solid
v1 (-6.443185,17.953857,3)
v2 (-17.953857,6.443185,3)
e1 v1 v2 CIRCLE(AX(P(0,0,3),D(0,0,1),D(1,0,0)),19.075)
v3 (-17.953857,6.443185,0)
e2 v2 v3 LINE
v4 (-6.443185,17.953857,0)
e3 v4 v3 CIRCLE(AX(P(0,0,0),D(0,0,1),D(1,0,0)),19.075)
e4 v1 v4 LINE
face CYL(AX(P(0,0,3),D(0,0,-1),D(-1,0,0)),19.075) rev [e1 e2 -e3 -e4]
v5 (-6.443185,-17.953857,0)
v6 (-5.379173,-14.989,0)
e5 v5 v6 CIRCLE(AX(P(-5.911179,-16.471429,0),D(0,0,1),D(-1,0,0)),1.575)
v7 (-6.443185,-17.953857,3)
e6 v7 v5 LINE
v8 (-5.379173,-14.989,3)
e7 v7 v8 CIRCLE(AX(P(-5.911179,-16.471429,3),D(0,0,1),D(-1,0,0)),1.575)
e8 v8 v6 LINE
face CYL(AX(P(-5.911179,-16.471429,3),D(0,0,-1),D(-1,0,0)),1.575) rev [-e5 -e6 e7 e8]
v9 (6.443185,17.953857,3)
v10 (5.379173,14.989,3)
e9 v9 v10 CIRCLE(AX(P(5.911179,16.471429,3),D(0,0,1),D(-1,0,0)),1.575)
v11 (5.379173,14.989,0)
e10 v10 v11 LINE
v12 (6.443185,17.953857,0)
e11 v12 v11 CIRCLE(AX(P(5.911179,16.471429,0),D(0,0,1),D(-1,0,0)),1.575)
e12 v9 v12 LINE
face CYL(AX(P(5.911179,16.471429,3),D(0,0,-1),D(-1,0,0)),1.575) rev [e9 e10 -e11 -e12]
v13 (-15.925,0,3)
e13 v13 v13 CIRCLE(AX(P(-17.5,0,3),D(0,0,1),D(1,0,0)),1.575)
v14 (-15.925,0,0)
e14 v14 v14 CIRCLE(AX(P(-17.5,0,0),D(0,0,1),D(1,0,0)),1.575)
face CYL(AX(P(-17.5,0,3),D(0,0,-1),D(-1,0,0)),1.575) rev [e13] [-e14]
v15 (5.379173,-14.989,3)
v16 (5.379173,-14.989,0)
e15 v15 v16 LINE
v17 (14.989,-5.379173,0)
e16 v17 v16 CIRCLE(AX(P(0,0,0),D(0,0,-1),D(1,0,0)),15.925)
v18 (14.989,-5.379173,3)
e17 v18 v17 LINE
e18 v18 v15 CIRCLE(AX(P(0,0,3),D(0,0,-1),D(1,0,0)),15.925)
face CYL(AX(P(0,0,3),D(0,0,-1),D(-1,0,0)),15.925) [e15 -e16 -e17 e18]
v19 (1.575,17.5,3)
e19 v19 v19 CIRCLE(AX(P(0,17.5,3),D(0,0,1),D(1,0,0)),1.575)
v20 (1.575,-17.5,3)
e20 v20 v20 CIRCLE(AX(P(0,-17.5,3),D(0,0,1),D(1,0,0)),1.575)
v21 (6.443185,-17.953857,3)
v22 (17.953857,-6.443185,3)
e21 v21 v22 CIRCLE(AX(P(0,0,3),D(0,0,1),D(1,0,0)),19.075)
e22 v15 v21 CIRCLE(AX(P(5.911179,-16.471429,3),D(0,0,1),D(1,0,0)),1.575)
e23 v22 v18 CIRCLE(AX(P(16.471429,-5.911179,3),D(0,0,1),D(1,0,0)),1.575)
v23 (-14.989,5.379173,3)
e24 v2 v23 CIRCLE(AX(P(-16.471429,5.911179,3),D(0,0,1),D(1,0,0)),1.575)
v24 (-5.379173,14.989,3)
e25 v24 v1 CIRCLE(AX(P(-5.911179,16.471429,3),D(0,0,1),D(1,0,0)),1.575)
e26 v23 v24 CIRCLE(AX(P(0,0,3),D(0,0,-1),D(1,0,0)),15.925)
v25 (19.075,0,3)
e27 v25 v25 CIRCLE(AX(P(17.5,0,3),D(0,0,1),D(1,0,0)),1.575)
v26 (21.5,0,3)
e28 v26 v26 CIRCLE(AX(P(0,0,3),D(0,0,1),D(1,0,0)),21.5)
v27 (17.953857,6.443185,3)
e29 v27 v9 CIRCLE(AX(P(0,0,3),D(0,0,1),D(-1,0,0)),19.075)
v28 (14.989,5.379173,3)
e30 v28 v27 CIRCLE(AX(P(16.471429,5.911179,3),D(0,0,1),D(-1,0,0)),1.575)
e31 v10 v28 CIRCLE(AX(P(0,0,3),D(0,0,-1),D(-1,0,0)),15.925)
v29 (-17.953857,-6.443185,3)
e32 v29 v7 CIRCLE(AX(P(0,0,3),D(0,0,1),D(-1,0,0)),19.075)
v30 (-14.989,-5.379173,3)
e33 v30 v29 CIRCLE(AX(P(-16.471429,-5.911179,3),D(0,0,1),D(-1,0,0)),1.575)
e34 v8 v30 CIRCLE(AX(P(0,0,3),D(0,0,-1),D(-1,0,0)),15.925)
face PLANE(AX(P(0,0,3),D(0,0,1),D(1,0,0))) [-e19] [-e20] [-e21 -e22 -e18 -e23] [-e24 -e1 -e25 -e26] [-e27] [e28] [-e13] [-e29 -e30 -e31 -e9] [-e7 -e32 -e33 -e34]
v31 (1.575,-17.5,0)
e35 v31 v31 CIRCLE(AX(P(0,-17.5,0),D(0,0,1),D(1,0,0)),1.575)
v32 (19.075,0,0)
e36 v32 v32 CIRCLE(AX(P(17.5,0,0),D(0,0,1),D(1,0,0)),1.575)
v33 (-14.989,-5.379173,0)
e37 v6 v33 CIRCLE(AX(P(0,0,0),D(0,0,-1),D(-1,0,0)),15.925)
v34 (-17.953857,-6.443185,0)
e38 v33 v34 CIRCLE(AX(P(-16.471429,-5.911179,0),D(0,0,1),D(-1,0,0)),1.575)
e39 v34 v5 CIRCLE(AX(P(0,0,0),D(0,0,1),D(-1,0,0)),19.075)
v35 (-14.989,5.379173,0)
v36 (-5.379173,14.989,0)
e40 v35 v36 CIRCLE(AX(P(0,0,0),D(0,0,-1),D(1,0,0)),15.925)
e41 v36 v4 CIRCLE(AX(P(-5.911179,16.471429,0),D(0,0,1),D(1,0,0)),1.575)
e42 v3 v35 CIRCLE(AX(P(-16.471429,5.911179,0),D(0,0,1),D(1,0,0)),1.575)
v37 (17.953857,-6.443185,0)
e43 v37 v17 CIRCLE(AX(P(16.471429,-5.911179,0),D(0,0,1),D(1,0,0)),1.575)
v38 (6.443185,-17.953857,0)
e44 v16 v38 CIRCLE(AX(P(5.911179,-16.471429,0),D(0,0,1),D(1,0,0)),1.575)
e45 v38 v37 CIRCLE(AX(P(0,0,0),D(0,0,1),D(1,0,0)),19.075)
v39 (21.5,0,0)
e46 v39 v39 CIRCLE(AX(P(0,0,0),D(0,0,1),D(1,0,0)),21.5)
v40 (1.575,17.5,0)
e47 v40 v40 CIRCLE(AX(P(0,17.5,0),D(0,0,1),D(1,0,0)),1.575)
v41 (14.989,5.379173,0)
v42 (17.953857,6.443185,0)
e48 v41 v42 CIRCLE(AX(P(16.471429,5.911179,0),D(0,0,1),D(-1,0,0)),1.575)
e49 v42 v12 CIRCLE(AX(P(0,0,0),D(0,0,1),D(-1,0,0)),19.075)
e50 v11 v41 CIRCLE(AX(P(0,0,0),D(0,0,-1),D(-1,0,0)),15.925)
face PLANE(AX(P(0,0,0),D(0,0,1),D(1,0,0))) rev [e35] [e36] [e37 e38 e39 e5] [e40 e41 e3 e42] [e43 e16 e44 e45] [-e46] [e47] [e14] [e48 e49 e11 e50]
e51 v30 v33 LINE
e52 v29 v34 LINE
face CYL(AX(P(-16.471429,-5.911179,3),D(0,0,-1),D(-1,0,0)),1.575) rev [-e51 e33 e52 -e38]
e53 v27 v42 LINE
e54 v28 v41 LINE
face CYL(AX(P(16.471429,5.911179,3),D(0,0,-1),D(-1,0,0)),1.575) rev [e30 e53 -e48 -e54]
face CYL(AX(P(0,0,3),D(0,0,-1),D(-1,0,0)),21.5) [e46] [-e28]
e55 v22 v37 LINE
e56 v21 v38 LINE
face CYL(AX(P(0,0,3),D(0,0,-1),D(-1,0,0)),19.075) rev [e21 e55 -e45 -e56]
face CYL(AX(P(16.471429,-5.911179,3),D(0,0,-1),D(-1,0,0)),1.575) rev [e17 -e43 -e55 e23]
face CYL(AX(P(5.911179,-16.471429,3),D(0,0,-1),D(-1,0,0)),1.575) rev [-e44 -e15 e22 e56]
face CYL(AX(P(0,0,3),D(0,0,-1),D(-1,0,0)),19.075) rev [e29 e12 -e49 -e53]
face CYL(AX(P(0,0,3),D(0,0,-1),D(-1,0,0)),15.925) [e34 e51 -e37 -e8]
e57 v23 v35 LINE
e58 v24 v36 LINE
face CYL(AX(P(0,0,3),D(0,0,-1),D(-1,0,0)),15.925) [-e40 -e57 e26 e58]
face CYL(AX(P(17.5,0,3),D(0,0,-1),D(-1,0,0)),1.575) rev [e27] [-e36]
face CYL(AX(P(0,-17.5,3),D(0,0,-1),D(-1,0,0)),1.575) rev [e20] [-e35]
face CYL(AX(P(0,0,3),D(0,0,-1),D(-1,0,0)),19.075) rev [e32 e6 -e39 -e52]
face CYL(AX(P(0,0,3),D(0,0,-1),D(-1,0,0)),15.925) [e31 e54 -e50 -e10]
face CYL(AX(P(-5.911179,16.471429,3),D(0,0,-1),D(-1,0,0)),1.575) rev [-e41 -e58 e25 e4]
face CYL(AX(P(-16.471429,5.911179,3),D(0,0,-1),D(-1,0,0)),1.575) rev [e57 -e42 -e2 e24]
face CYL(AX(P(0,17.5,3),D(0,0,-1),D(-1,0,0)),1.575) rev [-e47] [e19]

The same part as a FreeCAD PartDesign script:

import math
import FreeCAD as App
import Part
import Sketcher

V = App.Vector

doc = App.newDocument("Part")
params = doc.addObject("Spreadsheet::Sheet", "Params")
for row, (alias, value) in enumerate([
    ("sketch1_diameter", "43 mm"),
    ("sketch1_diameter2", "3.15 mm"),
    ("pad1_length", "3 mm"),
], start=1):
    params.set(f"A{row}", alias)
    params.set(f"B{row}", "=" + value)
    params.setAlias(f"B{row}", alias)

body = doc.addObject("PartDesign::Body", "Body")

# Sketch on XY plane
sketch1 = body.newObject("Sketcher::SketchObject", "Sketch")
sketch1.AttachmentSupport = (doc.getObject("XY_Plane"), [""])
sketch1.MapMode = "FlatFace"
sketch1.addGeometry([
    Part.Circle(V(0, 0, 0), V(0, 0, 1), 21.5),  # 0
    Part.ArcOfCircle(Part.Circle(V(0, 0, 0), V(0, 0, 1), 15.9), math.radians(-160), math.radians(-110)),  # 1
    Part.ArcOfCircle(Part.Circle(V(-5.9, -16.5, 0), V(0, 0, 1), 1.6), math.radians(-110), math.radians(70)),  # 2
    Part.ArcOfCircle(Part.Circle(V(0, 0, 0), V(0, 0, 1), 19.1), math.radians(-160), math.radians(-110)),  # 3
    Part.ArcOfCircle(Part.Circle(V(-16.5, -5.9, 0), V(0, 0, 1), 1.6), math.radians(20), math.radians(200)),  # 4
    Part.Circle(V(0, -17.5, 0), V(0, 0, 1), 1.6),  # 5
    Part.ArcOfCircle(Part.Circle(V(5.9, -16.5, 0), V(0, 0, 1), 1.6), math.radians(110), math.radians(290)),  # 6
    Part.ArcOfCircle(Part.Circle(V(0, 0, 0), V(0, 0, 1), 15.9), math.radians(-70), math.radians(-20)),  # 7
    Part.ArcOfCircle(Part.Circle(V(16.5, -5.9, 0), V(0, 0, 1), 1.6), math.radians(-20), math.radians(160)),  # 8
    Part.ArcOfCircle(Part.Circle(V(0, 0, 0), V(0, 0, 1), 19.1), math.radians(-70), math.radians(-20)),  # 9
    Part.Circle(V(-17.5, 0, 0), V(0, 0, 1), 1.6),  # 10
    Part.ArcOfCircle(Part.Circle(V(-5.9, 16.5, 0), V(0, 0, 1), 1.6), math.radians(-70), math.radians(110)),  # 11
    Part.ArcOfCircle(Part.Circle(V(0, 0, 0), V(0, 0, 1), 15.9), math.radians(110), math.radians(160)),  # 12
    Part.ArcOfCircle(Part.Circle(V(-16.5, 5.9, 0), V(0, 0, 1), 1.6), math.radians(160), math.radians(340)),  # 13
    Part.ArcOfCircle(Part.Circle(V(0, 0, 0), V(0, 0, 1), 19.1), math.radians(110), math.radians(160)),  # 14
    Part.Circle(V(17.5, 0, 0), V(0, 0, 1), 1.6),  # 15
    Part.Circle(V(0, 17.5, 0), V(0, 0, 1), 1.6),  # 16
    Part.ArcOfCircle(Part.Circle(V(0, 0, 0), V(0, 0, 1), 15.9), math.radians(20), math.radians(70)),  # 17
    Part.ArcOfCircle(Part.Circle(V(5.9, 16.5, 0), V(0, 0, 1), 1.6), math.radians(70), math.radians(250)),  # 18
    Part.ArcOfCircle(Part.Circle(V(0, 0, 0), V(0, 0, 1), 19.1), math.radians(20), math.radians(70)),  # 19
    Part.ArcOfCircle(Part.Circle(V(16.5, 5.9, 0), V(0, 0, 1), 1.6), math.radians(-160), math.radians(20)),  # 20
], False)
sketch1.addConstraint([
    Sketcher.Constraint("Tangent", 1, 2, 2, 2),
    Sketcher.Constraint("Tangent", 2, 1, 3, 2),
    Sketcher.Constraint("Tangent", 3, 1, 4, 2),
    Sketcher.Constraint("Tangent", 4, 1, 1, 1),
    Sketcher.Constraint("Tangent", 6, 1, 7, 1),
    Sketcher.Constraint("Tangent", 7, 2, 8, 2),
    Sketcher.Constraint("Tangent", 8, 1, 9, 2),
    Sketcher.Constraint("Tangent", 9, 1, 6, 2),
    Sketcher.Constraint("Tangent", 11, 1, 12, 1),
    Sketcher.Constraint("Tangent", 12, 2, 13, 2),
    Sketcher.Constraint("Tangent", 13, 1, 14, 2),
    Sketcher.Constraint("Tangent", 14, 1, 11, 2),
    Sketcher.Constraint("Tangent", 17, 2, 18, 2),
    Sketcher.Constraint("Tangent", 18, 1, 19, 2),
    Sketcher.Constraint("Tangent", 19, 1, 20, 2),
    Sketcher.Constraint("Tangent", 20, 1, 17, 1),
    Sketcher.Constraint("Coincident", 0, 3, -1, 1),
    Sketcher.Constraint("Coincident", 1, 3, -1, 1),
    Sketcher.Constraint("Coincident", 3, 3, -1, 1),
    Sketcher.Constraint("Coincident", 7, 3, -1, 1),
    Sketcher.Constraint("Coincident", 9, 3, -1, 1),
    Sketcher.Constraint("Coincident", 12, 3, -1, 1),
    Sketcher.Constraint("Coincident", 14, 3, -1, 1),
    Sketcher.Constraint("Coincident", 17, 3, -1, 1),
    Sketcher.Constraint("Coincident", 19, 3, -1, 1),
    Sketcher.Constraint("Equal", 4, 5),
    Sketcher.Constraint("Equal", 5, 6),
    Sketcher.Constraint("Equal", 1, 7),
    Sketcher.Constraint("Equal", 8, 10),
    Sketcher.Constraint("Equal", 10, 11),
    Sketcher.Constraint("Equal", 7, 12),
    Sketcher.Constraint("Equal", 13, 15),
    Sketcher.Constraint("Equal", 15, 16),
    Sketcher.Constraint("Equal", 12, 17),
    Sketcher.Constraint("Equal", 16, 18),
    Sketcher.Constraint("Symmetric", 10, 3, 15, 3, -1, 1),
    Sketcher.Constraint("Symmetric", 5, 3, 16, 3, -1, 1),
    Sketcher.Constraint("PointOnObject", 5, 3, -2),
    Sketcher.Constraint("PointOnObject", 10, 3, -1),
    Sketcher.Constraint("Horizontal", 2, 3, 6, 3),
    Sketcher.Constraint("Horizontal", 4, 3, 8, 3),
    Sketcher.Constraint("Horizontal", 11, 3, 18, 3),
    Sketcher.Constraint("Horizontal", 13, 3, 20, 3),
    Sketcher.Constraint("Vertical", 2, 3, 11, 3),
    Sketcher.Constraint("Vertical", 4, 3, 13, 3),
    Sketcher.Constraint("Diameter", 0, 43.0),
    Sketcher.Constraint("Diameter", 5, 3.15),
    Sketcher.Constraint("Radius", 1, 15.925),
    Sketcher.Constraint("DistanceY", 5, 3, -1, 1, 17.5),
    Sketcher.Constraint("DistanceX", 10, 3, -1, 1, 17.5),
    Sketcher.Constraint("DistanceY", 1, 2, -1, 1, 14.989),
    Sketcher.Constraint("DistanceX", 4, 1, -1, 1, 14.989),
])
sketch1.setExpression("Constraints[45]", "Params.sketch1_diameter")
sketch1.setExpression("Constraints[46]", "Params.sketch1_diameter2")
pad1 = body.newObject("PartDesign::Pad", "Pad")
pad1.Profile = sketch1
pad1.setExpression("Length", "Params.pad1_length")

doc.recompute()
